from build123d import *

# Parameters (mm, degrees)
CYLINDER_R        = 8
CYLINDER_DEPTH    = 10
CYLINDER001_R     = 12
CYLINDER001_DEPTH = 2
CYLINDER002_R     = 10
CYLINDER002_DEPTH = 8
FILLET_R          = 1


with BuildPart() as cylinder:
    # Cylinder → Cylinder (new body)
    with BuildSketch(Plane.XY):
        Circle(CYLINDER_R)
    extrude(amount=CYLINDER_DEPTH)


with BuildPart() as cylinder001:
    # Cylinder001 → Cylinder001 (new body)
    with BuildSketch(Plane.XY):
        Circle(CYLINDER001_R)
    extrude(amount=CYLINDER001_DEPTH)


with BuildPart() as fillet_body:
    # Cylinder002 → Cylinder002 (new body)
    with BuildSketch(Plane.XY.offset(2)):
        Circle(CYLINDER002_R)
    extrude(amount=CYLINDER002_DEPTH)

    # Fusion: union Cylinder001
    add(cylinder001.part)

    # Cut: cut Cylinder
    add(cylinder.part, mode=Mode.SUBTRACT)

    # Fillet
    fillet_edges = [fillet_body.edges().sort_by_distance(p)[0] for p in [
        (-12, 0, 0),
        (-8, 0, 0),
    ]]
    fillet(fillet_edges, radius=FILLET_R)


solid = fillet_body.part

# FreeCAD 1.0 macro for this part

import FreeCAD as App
import Part
import Sketcher

V = App.Vector
Q = App.Units.Quantity


def edges_at(feature, points):
    """Names of the edges that pass closest to the given points."""
    edges = feature.Shape.Edges
    near = lambda p: min(range(len(edges)), key=lambda i: edges[i].distToShape(Part.Vertex(*p))[0])
    return sorted({f"Edge{near(p) + 1}" for p in points})

doc = App.newDocument("Part")
body = doc.addObject("PartDesign::Body", "Body")

sketch1 = doc.addObject("Sketcher::SketchObject", "Sketch")
body.addObject(sketch1)
sketch1.AttachmentSupport = (doc.XY_Plane, [""])
sketch1.MapMode = "FlatFace"
sketch1.addGeometry(Part.Circle(V(0, 0, 0), V(0, 0, 1), 8), False)
sketch1.addConstraint(Sketcher.Constraint("Coincident", 0, 3, -1, 1))
sketch1.addConstraint(Sketcher.Constraint("Diameter", 0, Q("16 mm")))
pad1 = doc.addObject("PartDesign::Pad", "Pad")
body.addObject(pad1)
pad1.Profile = sketch1
pad1.Length = 10
body2 = doc.addObject("PartDesign::Body", "Body001")

sketch2 = doc.addObject("Sketcher::SketchObject", "Sketch001")
body2.addObject(sketch2)
sketch2.AttachmentSupport = (doc.getObject("XY_Plane001"), [""])
sketch2.MapMode = "FlatFace"
sketch2.addGeometry(Part.Circle(V(0, 0, 0), V(0, 0, 1), 12), False)
sketch2.addConstraint(Sketcher.Constraint("Coincident", 0, 3, -1, 1))
sketch2.addConstraint(Sketcher.Constraint("Diameter", 0, Q("24 mm")))
pad2 = doc.addObject("PartDesign::Pad", "Pad001")
body2.addObject(pad2)
pad2.Profile = sketch2
pad2.Length = 2
body3 = doc.addObject("PartDesign::Body", "Body002")

sketch3 = doc.addObject("Sketcher::SketchObject", "Sketch002")
body3.addObject(sketch3)
sketch3.AttachmentSupport = (doc.getObject("XY_Plane002"), [""])
sketch3.MapMode = "FlatFace"
sketch3.AttachmentOffset = App.Placement(V(0, 0, 2), App.Rotation())
sketch3.addGeometry(Part.Circle(V(0, 0, 0), V(0, 0, 1), 10), False)
sketch3.addConstraint(Sketcher.Constraint("Coincident", 0, 3, -1, 1))
sketch3.addConstraint(Sketcher.Constraint("Diameter", 0, Q("20 mm")))
pad3 = doc.addObject("PartDesign::Pad", "Pad002")
body3.addObject(pad3)
pad3.Profile = sketch3
pad3.Length = 8
doc.recompute()

boolean = doc.addObject("PartDesign::Boolean", "Boolean")
body3.addObject(boolean)
boolean.Type = "Fuse"
boolean.addObjects([body2])
doc.recompute()

boolean2 = doc.addObject("PartDesign::Boolean", "Boolean001")
body3.addObject(boolean2)
boolean2.Type = "Cut"
boolean2.addObjects([body])
doc.recompute()

fillet = doc.addObject("PartDesign::Fillet", "Fillet")
body3.addObject(fillet)
fillet.Base = (boolean2, edges_at(boolean2, [(-12, 0, 0), (-8, 0, 0)]))
fillet.Radius = 1

doc.recompute()
